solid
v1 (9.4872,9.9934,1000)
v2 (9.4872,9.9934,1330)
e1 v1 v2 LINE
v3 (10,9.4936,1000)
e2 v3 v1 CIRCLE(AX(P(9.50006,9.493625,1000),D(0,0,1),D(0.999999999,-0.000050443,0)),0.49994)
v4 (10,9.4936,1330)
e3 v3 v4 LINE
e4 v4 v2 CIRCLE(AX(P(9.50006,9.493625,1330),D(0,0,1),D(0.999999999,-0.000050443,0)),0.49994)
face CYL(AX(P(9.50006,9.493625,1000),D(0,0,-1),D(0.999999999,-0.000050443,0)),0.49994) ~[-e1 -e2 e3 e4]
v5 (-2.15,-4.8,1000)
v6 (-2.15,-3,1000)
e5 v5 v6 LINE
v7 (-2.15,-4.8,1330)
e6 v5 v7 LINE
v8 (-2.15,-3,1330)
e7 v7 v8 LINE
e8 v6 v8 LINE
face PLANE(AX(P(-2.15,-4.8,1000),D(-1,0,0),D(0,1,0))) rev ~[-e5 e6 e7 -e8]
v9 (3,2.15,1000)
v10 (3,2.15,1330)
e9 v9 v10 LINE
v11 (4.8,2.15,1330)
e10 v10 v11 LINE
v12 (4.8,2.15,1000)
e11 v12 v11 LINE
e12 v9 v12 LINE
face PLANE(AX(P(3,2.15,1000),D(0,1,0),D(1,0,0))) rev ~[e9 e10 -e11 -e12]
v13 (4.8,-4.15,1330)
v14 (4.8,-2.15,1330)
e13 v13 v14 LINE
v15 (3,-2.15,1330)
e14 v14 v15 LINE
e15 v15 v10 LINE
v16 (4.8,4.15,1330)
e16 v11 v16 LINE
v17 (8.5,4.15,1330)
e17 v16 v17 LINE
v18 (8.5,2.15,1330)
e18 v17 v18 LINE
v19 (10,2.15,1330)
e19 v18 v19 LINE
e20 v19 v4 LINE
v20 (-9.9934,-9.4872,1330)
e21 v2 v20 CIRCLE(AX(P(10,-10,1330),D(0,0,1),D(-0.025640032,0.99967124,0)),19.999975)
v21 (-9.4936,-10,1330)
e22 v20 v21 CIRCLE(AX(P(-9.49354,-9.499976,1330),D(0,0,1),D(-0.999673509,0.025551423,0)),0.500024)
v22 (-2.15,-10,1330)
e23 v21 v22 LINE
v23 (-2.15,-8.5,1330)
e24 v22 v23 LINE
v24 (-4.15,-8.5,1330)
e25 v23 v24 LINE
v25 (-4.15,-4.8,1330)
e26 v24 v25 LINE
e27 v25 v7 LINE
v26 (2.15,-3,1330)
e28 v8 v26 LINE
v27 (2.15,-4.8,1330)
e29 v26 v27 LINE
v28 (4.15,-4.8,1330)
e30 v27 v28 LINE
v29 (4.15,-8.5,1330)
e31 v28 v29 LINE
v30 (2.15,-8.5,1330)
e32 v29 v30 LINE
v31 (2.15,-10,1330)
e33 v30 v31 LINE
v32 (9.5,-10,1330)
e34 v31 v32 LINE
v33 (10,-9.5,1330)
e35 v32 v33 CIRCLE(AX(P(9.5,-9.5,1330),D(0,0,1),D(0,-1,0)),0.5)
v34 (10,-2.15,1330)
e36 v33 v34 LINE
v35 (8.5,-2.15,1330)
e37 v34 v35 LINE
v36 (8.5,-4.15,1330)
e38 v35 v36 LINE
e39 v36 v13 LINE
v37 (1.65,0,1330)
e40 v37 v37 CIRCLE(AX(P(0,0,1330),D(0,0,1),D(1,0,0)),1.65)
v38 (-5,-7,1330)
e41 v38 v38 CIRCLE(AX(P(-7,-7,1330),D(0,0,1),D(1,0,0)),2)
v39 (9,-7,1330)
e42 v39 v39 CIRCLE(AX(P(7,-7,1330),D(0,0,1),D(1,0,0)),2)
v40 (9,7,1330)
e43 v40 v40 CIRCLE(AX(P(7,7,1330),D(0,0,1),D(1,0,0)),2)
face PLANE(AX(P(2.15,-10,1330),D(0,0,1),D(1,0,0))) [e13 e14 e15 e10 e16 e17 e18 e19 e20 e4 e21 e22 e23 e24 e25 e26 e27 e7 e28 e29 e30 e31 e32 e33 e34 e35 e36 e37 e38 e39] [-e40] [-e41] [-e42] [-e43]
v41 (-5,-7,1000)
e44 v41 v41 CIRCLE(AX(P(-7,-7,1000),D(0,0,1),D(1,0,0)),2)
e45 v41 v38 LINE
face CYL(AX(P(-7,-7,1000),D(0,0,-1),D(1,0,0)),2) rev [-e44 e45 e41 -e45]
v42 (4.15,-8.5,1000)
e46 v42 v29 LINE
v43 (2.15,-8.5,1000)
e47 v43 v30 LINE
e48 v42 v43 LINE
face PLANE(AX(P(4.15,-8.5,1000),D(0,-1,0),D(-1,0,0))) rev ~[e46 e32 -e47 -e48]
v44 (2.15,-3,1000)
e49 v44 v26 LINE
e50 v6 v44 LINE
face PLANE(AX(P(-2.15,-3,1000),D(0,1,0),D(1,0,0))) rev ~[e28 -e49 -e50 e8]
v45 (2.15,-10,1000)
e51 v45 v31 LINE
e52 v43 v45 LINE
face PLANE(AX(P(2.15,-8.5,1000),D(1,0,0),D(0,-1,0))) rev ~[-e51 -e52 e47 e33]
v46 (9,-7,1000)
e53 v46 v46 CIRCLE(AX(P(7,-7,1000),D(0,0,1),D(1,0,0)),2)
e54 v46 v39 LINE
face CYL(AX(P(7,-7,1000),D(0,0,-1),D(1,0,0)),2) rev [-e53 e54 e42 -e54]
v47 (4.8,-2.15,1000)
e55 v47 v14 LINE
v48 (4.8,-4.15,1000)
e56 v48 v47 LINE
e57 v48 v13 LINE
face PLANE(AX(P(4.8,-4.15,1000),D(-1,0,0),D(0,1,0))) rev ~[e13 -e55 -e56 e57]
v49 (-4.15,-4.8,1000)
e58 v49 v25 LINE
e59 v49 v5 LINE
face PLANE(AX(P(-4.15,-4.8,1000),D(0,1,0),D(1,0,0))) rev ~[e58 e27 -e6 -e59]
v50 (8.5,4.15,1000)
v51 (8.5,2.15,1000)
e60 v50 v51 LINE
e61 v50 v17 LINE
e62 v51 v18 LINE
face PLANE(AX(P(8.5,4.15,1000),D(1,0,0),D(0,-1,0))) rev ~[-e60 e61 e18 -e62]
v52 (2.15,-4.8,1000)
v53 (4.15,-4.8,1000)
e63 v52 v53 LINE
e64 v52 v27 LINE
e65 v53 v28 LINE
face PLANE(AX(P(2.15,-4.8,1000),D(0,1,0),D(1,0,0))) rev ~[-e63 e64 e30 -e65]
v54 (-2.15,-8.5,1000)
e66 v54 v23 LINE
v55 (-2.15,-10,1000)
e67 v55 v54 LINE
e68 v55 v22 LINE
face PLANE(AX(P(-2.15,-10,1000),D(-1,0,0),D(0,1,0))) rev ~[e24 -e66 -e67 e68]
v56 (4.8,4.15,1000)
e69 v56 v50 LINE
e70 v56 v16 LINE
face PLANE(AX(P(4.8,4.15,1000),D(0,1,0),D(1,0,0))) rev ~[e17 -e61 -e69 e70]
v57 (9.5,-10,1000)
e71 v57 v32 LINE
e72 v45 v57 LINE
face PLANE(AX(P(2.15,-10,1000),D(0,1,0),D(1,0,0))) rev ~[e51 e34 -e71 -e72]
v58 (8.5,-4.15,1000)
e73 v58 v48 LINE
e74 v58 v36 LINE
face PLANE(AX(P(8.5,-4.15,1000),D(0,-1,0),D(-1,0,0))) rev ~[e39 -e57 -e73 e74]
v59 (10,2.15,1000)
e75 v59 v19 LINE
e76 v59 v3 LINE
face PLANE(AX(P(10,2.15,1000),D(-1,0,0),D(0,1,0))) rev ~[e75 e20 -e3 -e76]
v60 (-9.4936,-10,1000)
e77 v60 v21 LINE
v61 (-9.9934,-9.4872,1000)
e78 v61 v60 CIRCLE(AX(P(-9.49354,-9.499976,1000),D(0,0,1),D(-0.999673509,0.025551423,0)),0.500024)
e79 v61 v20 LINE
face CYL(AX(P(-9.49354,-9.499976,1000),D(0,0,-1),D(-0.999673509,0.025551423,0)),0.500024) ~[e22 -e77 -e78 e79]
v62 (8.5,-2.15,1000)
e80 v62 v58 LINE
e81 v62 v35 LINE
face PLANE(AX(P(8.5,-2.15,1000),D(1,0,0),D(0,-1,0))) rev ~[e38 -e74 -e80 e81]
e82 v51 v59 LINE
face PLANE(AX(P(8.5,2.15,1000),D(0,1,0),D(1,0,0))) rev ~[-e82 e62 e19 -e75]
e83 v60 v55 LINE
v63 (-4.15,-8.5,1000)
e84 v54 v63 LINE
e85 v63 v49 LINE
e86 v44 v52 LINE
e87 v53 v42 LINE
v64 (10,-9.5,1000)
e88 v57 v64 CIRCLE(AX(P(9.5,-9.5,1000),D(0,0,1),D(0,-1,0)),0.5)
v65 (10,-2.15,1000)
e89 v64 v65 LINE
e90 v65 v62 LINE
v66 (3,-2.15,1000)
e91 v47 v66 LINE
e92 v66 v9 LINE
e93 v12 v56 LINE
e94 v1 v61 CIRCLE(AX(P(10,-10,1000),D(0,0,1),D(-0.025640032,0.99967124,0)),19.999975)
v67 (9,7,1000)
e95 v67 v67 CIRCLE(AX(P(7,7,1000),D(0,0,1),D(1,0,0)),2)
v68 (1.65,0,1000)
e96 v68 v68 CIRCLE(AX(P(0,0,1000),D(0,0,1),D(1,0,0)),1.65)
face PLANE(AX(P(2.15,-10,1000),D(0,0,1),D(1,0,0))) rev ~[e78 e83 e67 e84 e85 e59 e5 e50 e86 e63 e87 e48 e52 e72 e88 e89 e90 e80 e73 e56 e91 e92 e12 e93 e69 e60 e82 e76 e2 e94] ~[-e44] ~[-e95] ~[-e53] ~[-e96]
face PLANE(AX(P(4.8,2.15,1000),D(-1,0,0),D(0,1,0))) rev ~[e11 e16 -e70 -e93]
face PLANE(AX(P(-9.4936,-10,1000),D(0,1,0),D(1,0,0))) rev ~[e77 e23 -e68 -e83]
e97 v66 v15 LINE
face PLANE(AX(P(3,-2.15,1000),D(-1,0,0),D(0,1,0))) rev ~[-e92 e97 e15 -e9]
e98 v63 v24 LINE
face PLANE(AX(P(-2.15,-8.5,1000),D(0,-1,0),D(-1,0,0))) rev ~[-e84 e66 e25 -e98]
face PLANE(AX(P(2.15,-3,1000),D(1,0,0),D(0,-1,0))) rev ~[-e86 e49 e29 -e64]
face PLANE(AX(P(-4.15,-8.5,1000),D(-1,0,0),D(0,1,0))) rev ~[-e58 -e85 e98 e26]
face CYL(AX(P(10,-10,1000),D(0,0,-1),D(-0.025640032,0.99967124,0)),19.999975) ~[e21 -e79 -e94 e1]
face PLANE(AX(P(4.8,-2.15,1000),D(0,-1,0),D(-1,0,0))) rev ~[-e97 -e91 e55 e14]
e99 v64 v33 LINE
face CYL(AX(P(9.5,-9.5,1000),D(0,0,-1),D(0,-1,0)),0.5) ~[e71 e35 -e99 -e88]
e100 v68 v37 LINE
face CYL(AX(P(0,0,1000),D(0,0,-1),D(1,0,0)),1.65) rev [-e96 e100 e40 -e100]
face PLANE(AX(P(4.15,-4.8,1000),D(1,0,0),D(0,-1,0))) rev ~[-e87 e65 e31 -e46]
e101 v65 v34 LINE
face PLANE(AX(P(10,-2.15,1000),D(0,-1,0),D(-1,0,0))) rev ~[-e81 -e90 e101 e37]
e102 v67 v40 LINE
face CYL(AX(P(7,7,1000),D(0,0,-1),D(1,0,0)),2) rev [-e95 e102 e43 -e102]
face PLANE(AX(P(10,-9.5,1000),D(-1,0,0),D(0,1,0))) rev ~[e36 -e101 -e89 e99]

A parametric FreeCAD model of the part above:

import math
import FreeCAD as App
import Part
import Sketcher

V = App.Vector
Q = App.Units.Quantity

doc = App.newDocument("Part")
params = doc.addObject("Spreadsheet::Sheet", "Params")
for row, (alias, value) in enumerate([
    ("sketch1_diameter", "4 mm"),
    ("sketch1_radius", "20 mm"),
    ("sketch1_diameter2", "3.3 mm"),
    ("sketch1_radius2", "0.5 mm"),
    ("sketch1_width", "2 mm"),
    ("pad1_length", "330 mm"),
], start=1):
    params.set(f"A{row}", alias)
    params.set(f"B{row}", "=" + value)
    params.setAlias(f"B{row}", alias)

body = doc.addObject("PartDesign::Body", "Body")

sketch1 = doc.addObject("Sketcher::SketchObject", "Sketch")
body.addObject(sketch1)
sketch1.AttachmentSupport = (doc.XY_Plane, [""])
sketch1.MapMode = "FlatFace"
sketch1.AttachmentOffset = App.Placement(V(0, 0, 1000), App.Rotation())
sketch1.addGeometry([
    Part.LineSegment(V(8.5, 4.15, 0), V(8.5, 2.15, 0)),
    Part.LineSegment(V(8.5, 2.15, 0), V(10, 2.15, 0)),
    Part.LineSegment(V(10, 2.15, 0), V(10, 9.49, 0)),
    Part.ArcOfCircle(Part.Circle(V(9.5, 9.49, 0), V(0, 0, 1), 0.5), math.radians(0), math.radians(91)),
    Part.ArcOfCircle(Part.Circle(V(10, -10, 0), V(0, 0, 1), 20), math.radians(91), math.radians(179)),
    Part.ArcOfCircle(Part.Circle(V(-9.49, -9.5, 0), V(0, 0, 1), 0.5), math.radians(179), math.radians(270)),
    Part.LineSegment(V(-9.49, -10, 0), V(-2.15, -10, 0)),
    Part.LineSegment(V(-2.15, -10, 0), V(-2.15, -8.5, 0)),
    Part.LineSegment(V(-2.15, -8.5, 0), V(-4.15, -8.5, 0)),
    Part.LineSegment(V(-4.15, -8.5, 0), V(-4.15, -4.8, 0)),
    Part.LineSegment(V(-4.15, -4.8, 0), V(-2.15, -4.8, 0)),
    Part.LineSegment(V(-2.15, -4.8, 0), V(-2.15, -3, 0)),
    Part.LineSegment(V(-2.15, -3, 0), V(2.15, -3, 0)),
    Part.LineSegment(V(2.15, -3, 0), V(2.15, -4.8, 0)),
    Part.LineSegment(V(2.15, -4.8, 0), V(4.15, -4.8, 0)),
    Part.LineSegment(V(4.15, -4.8, 0), V(4.15, -8.5, 0)),
    Part.LineSegment(V(4.15, -8.5, 0), V(2.15, -8.5, 0)),
    Part.LineSegment(V(2.15, -8.5, 0), V(2.15, -10, 0)),
    Part.LineSegment(V(2.15, -10, 0), V(9.5, -10, 0)),
    Part.ArcOfCircle(Part.Circle(V(9.5, -9.5, 0), V(0, 0, 1), 0.5), math.radians(-90), math.radians(0)),
    Part.LineSegment(V(10, -9.5, 0), V(10, -2.15, 0)),
    Part.LineSegment(V(10, -2.15, 0), V(8.5, -2.15, 0)),
    Part.LineSegment(V(8.5, -2.15, 0), V(8.5, -4.15, 0)),
    Part.LineSegment(V(8.5, -4.15, 0), V(4.8, -4.15, 0)),
    Part.LineSegment(V(4.8, -4.15, 0), V(4.8, -2.15, 0)),
    Part.LineSegment(V(4.8, -2.15, 0), V(3, -2.15, 0)),
    Part.LineSegment(V(3, -2.15, 0), V(3, 2.15, 0)),
    Part.LineSegment(V(3, 2.15, 0), V(4.8, 2.15, 0)),
    Part.LineSegment(V(4.8, 2.15, 0), V(4.8, 4.15, 0)),
    Part.LineSegment(V(4.8, 4.15, 0), V(8.5, 4.15, 0)),
    Part.Circle(V(-7, -7, 0), V(0, 0, 1), 2),
    Part.Circle(V(7, -7, 0), V(0, 0, 1), 2),
    Part.Circle(V(0, 0, 0), V(0, 0, 1), 1.65),
    Part.Circle(V(7, 7, 0), V(0, 0, 1), 2),
], False)
sketch1.addConstraint([
    Sketcher.Constraint("Coincident", 0, 2, 1, 1),
    Sketcher.Constraint("Coincident", 1, 2, 2, 1),
    Sketcher.Constraint("Tangent", 2, 2, 3, 1),
    Sketcher.Constraint("Tangent", 3, 2, 4, 1),
    Sketcher.Constraint("Tangent", 4, 2, 5, 1),
    Sketcher.Constraint("Tangent", 5, 2, 6, 1),
    Sketcher.Constraint("Coincident", 6, 2, 7, 1),
    Sketcher.Constraint("Coincident", 7, 2, 8, 1),
    Sketcher.Constraint("Coincident", 8, 2, 9, 1),
    Sketcher.Constraint("Coincident", 9, 2, 10, 1),
    Sketcher.Constraint("Coincident", 10, 2, 11, 1),
    Sketcher.Constraint("Coincident", 11, 2, 12, 1),
    Sketcher.Constraint("Coincident", 12, 2, 13, 1),
    Sketcher.Constraint("Coincident", 13, 2, 14, 1),
    Sketcher.Constraint("Coincident", 14, 2, 15, 1),
    Sketcher.Constraint("Coincident", 15, 2, 16, 1),
    Sketcher.Constraint("Coincident", 16, 2, 17, 1),
    Sketcher.Constraint("Coincident", 17, 2, 18, 1),
    Sketcher.Constraint("Tangent", 18, 2, 19, 1),
    Sketcher.Constraint("Tangent", 19, 2, 20, 1),
    Sketcher.Constraint("Coincident", 20, 2, 21, 1),
    Sketcher.Constraint("Coincident", 21, 2, 22, 1),
    Sketcher.Constraint("Coincident", 22, 2, 23, 1),
    Sketcher.Constraint("Coincident", 23, 2, 24, 1),
    Sketcher.Constraint("Coincident", 24, 2, 25, 1),
    Sketcher.Constraint("Coincident", 25, 2, 26, 1),
    Sketcher.Constraint("Coincident", 26, 2, 27, 1),
    Sketcher.Constraint("Coincident", 27, 2, 28, 1),
    Sketcher.Constraint("Coincident", 28, 2, 29, 1),
    Sketcher.Constraint("Coincident", 29, 2, 0, 1),
    Sketcher.Constraint("Vertical", 0),
    Sketcher.Constraint("Horizontal", 1),
    Sketcher.Constraint("Vertical", 2),
    Sketcher.Constraint("Horizontal", 6),
    Sketcher.Constraint("Vertical", 7),
    Sketcher.Constraint("Horizontal", 8),
    Sketcher.Constraint("Vertical", 9),
    Sketcher.Constraint("Horizontal", 10),
    Sketcher.Constraint("Vertical", 11),
    Sketcher.Constraint("Horizontal", 12),
    Sketcher.Constraint("Vertical", 13),
    Sketcher.Constraint("Horizontal", 14),
    Sketcher.Constraint("Vertical", 15),
    Sketcher.Constraint("Horizontal", 16),
    Sketcher.Constraint("Vertical", 17),
    Sketcher.Constraint("Horizontal", 18),
    Sketcher.Constraint("Vertical", 20),
    Sketcher.Constraint("Horizontal", 21),
    Sketcher.Constraint("Vertical", 22),
    Sketcher.Constraint("Horizontal", 23),
    Sketcher.Constraint("Vertical", 24),
    Sketcher.Constraint("Horizontal", 25),
    Sketcher.Constraint("Vertical", 26),
    Sketcher.Constraint("Horizontal", 27),
    Sketcher.Constraint("Vertical", 28),
    Sketcher.Constraint("Horizontal", 29),
    Sketcher.Constraint("Coincident", 32, 3, -1, 1),
    Sketcher.Constraint("Equal", 3, 5),
    Sketcher.Constraint("Equal", 5, 19),
    Sketcher.Constraint("Equal", 30, 31),
    Sketcher.Constraint("Equal", 31, 33),
    Sketcher.Constraint("Symmetric", 30, 3, 33, 3, -1, 1),
    Sketcher.Constraint("Symmetric", 30, 3, 31, 3, -2),
    Sketcher.Constraint("Symmetric", 10, 2, 13, 2, -2),
    Sketcher.Constraint("Symmetric", 8, 2, 15, 2, -2),
    Sketcher.Constraint("Symmetric", 6, 2, 17, 2, -2),
    Sketcher.Constraint("Symmetric", 1, 2, 20, 2, -1),
    Sketcher.Constraint("Symmetric", 24, 2, 27, 2, -1),
    Sketcher.Constraint("Symmetric", 22, 2, 29, 2, -1),
    Sketcher.Constraint("Horizontal", 4, 3, 5, 2),
    Sketcher.Constraint("Horizontal", 21, 2, 24, 2),
    Sketcher.Constraint("Vertical", 4, 3, 1, 2),
    Sketcher.Constraint("Vertical", 7, 2, 10, 2),
    Sketcher.Constraint("Equal", 16, 0),
    Sketcher.Constraint("Equal", 6, 2),
    Sketcher.Constraint("Equal", 21, 7),
    Sketcher.Constraint("Equal", 29, 9),
    Sketcher.Constraint("Equal", 27, 11),
    Sketcher.Constraint("Equal", 18, 20),
    Sketcher.Constraint("Diameter", 30, Q("4 mm")),
    Sketcher.Constraint("Radius", 4, Q("20 mm")),
    Sketcher.Constraint("Diameter", 32, Q("3.3 mm")),
    Sketcher.Constraint("Radius", 3, Q("0.5 mm")),
    Sketcher.Constraint("DistanceX", 8, 2, 8, 1, Q("2 mm")),
    Sketcher.Constraint("DistanceX", 1, 1, 1, 2, Q("1.5 mm")),
    Sketcher.Constraint("DistanceX", 12, 1, 12, 2, Q("4.3 mm")),
    Sketcher.Constraint("DistanceX", 23, 2, 23, 1, Q("3.7 mm")),
    Sketcher.Constraint("DistanceX", 25, 2, 25, 1, Q("1.8 mm")),
    Sketcher.Constraint("DistanceX", -1, 1, 4, 3, Q("10 mm")),
    Sketcher.Constraint("DistanceX", 30, 3, -1, 1, Q("7 mm")),
    Sketcher.Constraint("DistanceY", 30, 3, -1, 1, Q("7 mm")),
])
sketch1.setExpression("Constraints[79]", "Params.sketch1_diameter")
sketch1.setExpression("Constraints[80]", "Params.sketch1_radius")
sketch1.setExpression("Constraints[81]", "Params.sketch1_diameter2")
sketch1.setExpression("Constraints[82]", "Params.sketch1_radius2")
sketch1.setExpression("Constraints[83]", "Params.sketch1_width")
pad1 = doc.addObject("PartDesign::Pad", "Pad")
body.addObject(pad1)
pad1.Profile = sketch1
pad1.setExpression("Length", "Params.pad1_length")

doc.recompute()
